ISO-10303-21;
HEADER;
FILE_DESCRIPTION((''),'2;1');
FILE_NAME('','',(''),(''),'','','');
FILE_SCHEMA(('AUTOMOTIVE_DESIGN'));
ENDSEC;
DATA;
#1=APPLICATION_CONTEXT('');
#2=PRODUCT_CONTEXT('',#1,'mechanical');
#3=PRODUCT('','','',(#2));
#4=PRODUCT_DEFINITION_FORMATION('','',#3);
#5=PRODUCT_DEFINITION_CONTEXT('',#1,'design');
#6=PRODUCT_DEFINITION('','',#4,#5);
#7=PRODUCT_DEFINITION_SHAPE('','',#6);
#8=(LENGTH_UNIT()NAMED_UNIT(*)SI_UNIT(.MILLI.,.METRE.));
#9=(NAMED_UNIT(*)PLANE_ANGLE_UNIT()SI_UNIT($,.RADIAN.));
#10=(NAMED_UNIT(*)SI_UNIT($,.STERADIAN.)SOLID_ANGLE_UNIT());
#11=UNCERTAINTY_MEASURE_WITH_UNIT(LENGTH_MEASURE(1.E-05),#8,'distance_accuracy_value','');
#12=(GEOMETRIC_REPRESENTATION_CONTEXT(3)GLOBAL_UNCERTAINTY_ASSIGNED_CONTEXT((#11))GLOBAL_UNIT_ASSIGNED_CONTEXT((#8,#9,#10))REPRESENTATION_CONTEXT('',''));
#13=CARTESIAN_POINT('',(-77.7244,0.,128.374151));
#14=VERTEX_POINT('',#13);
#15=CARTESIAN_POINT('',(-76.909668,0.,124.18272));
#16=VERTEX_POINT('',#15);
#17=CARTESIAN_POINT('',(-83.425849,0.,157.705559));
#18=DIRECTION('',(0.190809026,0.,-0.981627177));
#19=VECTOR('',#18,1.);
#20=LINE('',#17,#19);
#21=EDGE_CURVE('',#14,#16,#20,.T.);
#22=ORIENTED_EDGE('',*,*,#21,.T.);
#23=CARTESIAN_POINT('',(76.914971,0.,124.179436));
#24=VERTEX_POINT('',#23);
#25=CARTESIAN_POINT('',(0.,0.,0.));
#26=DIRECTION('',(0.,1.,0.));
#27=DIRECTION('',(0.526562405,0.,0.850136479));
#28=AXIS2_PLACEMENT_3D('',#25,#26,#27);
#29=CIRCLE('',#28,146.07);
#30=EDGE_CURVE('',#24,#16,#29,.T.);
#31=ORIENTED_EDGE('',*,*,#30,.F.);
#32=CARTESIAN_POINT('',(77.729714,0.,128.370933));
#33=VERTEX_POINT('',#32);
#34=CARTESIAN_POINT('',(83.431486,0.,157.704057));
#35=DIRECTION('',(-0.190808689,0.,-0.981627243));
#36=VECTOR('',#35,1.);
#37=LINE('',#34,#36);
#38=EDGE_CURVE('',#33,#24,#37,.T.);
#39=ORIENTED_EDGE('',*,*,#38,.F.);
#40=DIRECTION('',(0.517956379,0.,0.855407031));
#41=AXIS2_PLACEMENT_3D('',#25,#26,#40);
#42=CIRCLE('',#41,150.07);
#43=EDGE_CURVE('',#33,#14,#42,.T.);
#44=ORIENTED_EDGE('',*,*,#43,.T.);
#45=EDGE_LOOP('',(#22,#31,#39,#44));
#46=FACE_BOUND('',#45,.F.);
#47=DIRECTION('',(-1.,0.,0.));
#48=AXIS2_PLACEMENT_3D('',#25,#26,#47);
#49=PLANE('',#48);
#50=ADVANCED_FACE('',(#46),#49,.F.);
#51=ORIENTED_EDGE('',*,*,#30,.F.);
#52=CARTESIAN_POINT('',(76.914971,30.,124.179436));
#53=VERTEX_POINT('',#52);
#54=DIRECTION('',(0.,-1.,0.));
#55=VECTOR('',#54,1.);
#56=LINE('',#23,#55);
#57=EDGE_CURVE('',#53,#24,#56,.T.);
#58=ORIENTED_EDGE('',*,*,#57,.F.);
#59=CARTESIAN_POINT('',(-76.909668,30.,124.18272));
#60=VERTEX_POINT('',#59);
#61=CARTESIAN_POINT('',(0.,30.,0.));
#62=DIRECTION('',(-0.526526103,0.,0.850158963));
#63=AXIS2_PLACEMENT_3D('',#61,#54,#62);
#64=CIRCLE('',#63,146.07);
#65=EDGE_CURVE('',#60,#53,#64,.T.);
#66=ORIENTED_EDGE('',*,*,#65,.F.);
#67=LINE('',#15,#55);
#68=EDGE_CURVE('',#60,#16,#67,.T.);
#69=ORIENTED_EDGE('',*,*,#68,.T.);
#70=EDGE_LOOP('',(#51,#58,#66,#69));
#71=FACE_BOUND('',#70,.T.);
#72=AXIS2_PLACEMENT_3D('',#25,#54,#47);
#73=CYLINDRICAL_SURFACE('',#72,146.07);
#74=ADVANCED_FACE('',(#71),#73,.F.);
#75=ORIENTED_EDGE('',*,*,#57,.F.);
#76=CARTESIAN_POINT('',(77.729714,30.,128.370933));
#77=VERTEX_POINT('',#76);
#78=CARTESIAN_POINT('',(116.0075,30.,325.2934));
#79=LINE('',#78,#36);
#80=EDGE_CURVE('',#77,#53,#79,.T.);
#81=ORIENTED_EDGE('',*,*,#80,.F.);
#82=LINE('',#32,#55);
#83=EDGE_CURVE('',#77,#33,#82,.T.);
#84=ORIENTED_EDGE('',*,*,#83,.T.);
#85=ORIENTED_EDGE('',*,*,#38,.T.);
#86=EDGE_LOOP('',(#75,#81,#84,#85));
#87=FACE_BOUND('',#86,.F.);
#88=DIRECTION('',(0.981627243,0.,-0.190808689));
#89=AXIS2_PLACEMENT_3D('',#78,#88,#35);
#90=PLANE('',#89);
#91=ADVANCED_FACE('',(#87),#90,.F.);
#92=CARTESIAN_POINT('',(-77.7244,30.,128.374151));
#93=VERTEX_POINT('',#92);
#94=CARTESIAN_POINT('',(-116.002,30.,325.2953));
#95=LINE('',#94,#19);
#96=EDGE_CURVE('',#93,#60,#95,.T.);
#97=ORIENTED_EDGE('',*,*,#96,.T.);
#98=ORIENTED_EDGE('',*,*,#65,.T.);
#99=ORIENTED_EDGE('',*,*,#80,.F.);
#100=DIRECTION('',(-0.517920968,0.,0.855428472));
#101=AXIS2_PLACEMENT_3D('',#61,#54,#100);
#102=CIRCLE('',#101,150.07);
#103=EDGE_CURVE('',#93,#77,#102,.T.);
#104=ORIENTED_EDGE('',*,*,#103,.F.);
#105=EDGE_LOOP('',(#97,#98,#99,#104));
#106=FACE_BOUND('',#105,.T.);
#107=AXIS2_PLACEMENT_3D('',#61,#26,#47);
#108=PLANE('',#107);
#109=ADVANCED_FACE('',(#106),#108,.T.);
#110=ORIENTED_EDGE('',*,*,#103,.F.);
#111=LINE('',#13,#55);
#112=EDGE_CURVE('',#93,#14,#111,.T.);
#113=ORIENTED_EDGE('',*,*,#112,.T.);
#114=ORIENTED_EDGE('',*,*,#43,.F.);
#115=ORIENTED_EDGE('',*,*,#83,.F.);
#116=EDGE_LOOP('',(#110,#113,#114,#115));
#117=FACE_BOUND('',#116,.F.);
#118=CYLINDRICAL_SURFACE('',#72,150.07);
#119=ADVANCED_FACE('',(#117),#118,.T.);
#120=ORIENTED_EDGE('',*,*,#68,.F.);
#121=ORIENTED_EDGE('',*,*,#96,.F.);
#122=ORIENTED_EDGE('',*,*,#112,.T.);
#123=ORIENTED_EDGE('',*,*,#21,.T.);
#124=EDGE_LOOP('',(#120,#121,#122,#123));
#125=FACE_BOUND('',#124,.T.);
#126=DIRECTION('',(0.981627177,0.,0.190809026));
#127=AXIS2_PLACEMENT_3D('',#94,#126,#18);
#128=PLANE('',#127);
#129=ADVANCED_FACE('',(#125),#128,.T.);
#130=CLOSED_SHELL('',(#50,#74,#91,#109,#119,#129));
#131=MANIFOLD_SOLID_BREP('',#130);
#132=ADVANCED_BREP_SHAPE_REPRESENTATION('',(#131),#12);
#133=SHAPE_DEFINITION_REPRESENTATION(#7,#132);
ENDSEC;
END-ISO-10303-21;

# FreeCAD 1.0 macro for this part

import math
import FreeCAD as App
import Part
import Sketcher
Q = App.Units.Quantity

doc = App.newDocument("Part")
body = doc.addObject("PartDesign::Body", "Body")

# Sketch on XZ plane
sketch1 = body.newObject("Sketcher::SketchObject", "Sketch")
sketch1.AttachmentSupport = (doc.getObject("XZ_Plane"), [""])
sketch1.MapMode = "FlatFace"
sketch1.addGeometry(Part.Circle(App.Vector(0, 0, 0), App.Vector(0, 0, 1), 150.07), False)
sketch1.addGeometry(Part.Circle(App.Vector(0, 0, 0), App.Vector(0, 0, 1), 146.07), False)
sketch1.addConstraint(Sketcher.Constraint("Coincident", 0, 3, -1, 1))
sketch1.addConstraint(Sketcher.Constraint("Coincident", 1, 3, -1, 1))
sketch1.addConstraint(Sketcher.Constraint("Diameter", 0, Q("300.14 mm")))
sketch1.addConstraint(Sketcher.Constraint("Diameter", 1, Q("292.14 mm")))
pad1 = body.newObject("PartDesign::Pad", "Pad")
pad1.Profile = sketch1
pad1.Length = 30
pad1.Reversed = True

# Sketch on XZ plane
sketch2 = body.newObject("Sketcher::SketchObject", "Sketch001")
sketch2.AttachmentSupport = (doc.getObject("XZ_Plane"), [""])
sketch2.MapMode = "FlatFace"
sketch2.AttachmentOffset = App.Placement(App.Vector(0, 0, -30), App.Rotation())
sketch2.addGeometry(Part.LineSegment(App.Vector(-76.6912, 123.0588, 0), App.Vector(-116.002, 325.2953, 0)), False)
sketch2.addGeometry(Part.ArcOfCircle(Part.Circle(App.Vector(0, 0, 0), App.Vector(0, 0, 1), 345.359952), math.radians(70.372535), math.radians(109.626499)), False)
sketch2.addGeometry(Part.LineSegment(App.Vector(116.0075, 325.2934, 0), App.Vector(76.6965, 123.0555, 0)), False)
sketch2.addGeometry(Part.ArcOfCircle(Part.Circle(App.Vector(0, 0, 0), App.Vector(0, 0, 1), 145.000029), math.radians(58.066052), math.radians(121.931481)), False)
sketch2.addConstraint(Sketcher.Constraint("Coincident", 0, 2, 1, 2))
sketch2.addConstraint(Sketcher.Constraint("Coincident", 1, 1, 2, 1))
sketch2.addConstraint(Sketcher.Constraint("Coincident", 2, 2, 3, 1))
sketch2.addConstraint(Sketcher.Constraint("Coincident", 3, 2, 0, 1))
sketch2.addConstraint(Sketcher.Constraint("Coincident", 1, 3, -1, 1))
sketch2.addConstraint(Sketcher.Constraint("Coincident", 3, 3, -1, 1))
sketch2.addConstraint(Sketcher.Constraint("Radius", 3, Q("145 mm")))
sketch2.addConstraint(Sketcher.Constraint("Radius", 1, Q("345.36 mm")))
sketch2.addConstraint(Sketcher.Constraint("Angle", 0, Q("101 deg")))
sketch2.addConstraint(Sketcher.Constraint("Angle", 2, Q("-101 deg")))
sketch2.addConstraint(Sketcher.Constraint("Distance", 2, Q("206.023 mm")))
sketch2.addConstraint(Sketcher.Constraint("DistanceX", 0, 2, -1, 1, Q("116.002 mm")))
pocket1 = body.newObject("PartDesign::Pocket", "Pocket")
pocket1.Profile = sketch2
pocket1.Type = "ThroughAll"
pocket1.Reversed = True

doc.recompute()
